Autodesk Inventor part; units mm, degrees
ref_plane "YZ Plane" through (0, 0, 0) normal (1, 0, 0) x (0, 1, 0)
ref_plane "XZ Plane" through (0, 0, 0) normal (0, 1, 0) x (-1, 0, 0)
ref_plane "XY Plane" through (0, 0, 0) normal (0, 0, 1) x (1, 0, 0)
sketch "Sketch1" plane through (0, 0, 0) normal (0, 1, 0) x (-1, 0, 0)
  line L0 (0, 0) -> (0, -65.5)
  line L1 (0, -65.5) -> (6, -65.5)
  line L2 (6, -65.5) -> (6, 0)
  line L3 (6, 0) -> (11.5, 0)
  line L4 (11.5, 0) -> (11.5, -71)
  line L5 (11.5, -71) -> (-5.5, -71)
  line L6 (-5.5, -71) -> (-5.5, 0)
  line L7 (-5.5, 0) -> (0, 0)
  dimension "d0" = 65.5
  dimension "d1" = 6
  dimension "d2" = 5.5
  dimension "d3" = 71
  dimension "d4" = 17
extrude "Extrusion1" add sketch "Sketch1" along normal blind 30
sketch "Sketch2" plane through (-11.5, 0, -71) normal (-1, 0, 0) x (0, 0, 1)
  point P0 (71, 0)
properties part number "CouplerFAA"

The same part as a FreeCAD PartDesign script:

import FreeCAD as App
import Part
import Sketcher
Q = App.Units.Quantity


def add_polygon(sketch, points):
    """Adds a closed chain of lines whose ends are joined by coincident constraints."""
    first, n = sketch.GeometryCount, len(points)
    for a, b in zip(points, points[1:] + points[:1]):
        sketch.addGeometry(Part.LineSegment(App.Vector(*a, 0), App.Vector(*b, 0)), False)
    for i in range(n):
        sketch.addConstraint(Sketcher.Constraint("Coincident", first + i, 2, first + (i + 1) % n, 1))

doc = App.newDocument("Part")
params = doc.addObject("Spreadsheet::Sheet", "Params")
for row, (alias, value) in enumerate([
    ("sketch1_width", "17 mm"),
    ("sketch1_width2", "6 mm"),
    ("sketch1_height", "71 mm"),
    ("sketch1_height2", "65.5 mm"),
    ("pad1_length", "30 mm"),
], start=1):
    params.set(f"A{row}", alias)
    params.set(f"B{row}", "=" + value)
    params.setAlias(f"B{row}", alias)

body = doc.addObject("PartDesign::Body", "Body")

sketch1 = body.newObject("Sketcher::SketchObject", "Sketch")
sketch1.AttachmentSupport = (doc.getObject("XZ_Plane"), [""])
sketch1.MapMode = "FlatFace"
add_polygon(sketch1, [(0, -65.5), (0, 0), (5.5, 0), (5.5, -71), (-11.5, -71), (-11.5, 0), (-6, 0), (-6, -65.5)])
sketch1.addConstraint([
    Sketcher.Constraint("Vertical", 0),
    Sketcher.Constraint("Horizontal", 1),
    Sketcher.Constraint("Vertical", 2),
    Sketcher.Constraint("Horizontal", 3),
    Sketcher.Constraint("Vertical", 4),
    Sketcher.Constraint("Horizontal", 5),
    Sketcher.Constraint("Vertical", 6),
    Sketcher.Constraint("Horizontal", 7),
    Sketcher.Constraint("Coincident", 0, 2, -1, 1),
    Sketcher.Constraint("PointOnObject", 4, 2, -1),
    Sketcher.Constraint("Equal", 1, 5),
    Sketcher.Constraint("DistanceX", 3, 2, 3, 1, Q("17 mm")),
    Sketcher.Constraint("DistanceX", 7, 1, 7, 2, Q("6 mm")),
    Sketcher.Constraint("DistanceY", 2, 2, 2, 1, Q("71 mm")),
    Sketcher.Constraint("DistanceY", 0, 1, 0, 2, Q("65.5 mm")),
])
sketch1.setExpression("Constraints[19]", "Params.sketch1_width")
sketch1.setExpression("Constraints[20]", "Params.sketch1_width2")
sketch1.setExpression("Constraints[21]", "Params.sketch1_height")
sketch1.setExpression("Constraints[22]", "Params.sketch1_height2")
pad1 = body.newObject("PartDesign::Pad", "Pad")
pad1.Profile = sketch1
pad1.setExpression("Length", "Params.pad1_length")
pad1.Reversed = True

doc.recompute()
